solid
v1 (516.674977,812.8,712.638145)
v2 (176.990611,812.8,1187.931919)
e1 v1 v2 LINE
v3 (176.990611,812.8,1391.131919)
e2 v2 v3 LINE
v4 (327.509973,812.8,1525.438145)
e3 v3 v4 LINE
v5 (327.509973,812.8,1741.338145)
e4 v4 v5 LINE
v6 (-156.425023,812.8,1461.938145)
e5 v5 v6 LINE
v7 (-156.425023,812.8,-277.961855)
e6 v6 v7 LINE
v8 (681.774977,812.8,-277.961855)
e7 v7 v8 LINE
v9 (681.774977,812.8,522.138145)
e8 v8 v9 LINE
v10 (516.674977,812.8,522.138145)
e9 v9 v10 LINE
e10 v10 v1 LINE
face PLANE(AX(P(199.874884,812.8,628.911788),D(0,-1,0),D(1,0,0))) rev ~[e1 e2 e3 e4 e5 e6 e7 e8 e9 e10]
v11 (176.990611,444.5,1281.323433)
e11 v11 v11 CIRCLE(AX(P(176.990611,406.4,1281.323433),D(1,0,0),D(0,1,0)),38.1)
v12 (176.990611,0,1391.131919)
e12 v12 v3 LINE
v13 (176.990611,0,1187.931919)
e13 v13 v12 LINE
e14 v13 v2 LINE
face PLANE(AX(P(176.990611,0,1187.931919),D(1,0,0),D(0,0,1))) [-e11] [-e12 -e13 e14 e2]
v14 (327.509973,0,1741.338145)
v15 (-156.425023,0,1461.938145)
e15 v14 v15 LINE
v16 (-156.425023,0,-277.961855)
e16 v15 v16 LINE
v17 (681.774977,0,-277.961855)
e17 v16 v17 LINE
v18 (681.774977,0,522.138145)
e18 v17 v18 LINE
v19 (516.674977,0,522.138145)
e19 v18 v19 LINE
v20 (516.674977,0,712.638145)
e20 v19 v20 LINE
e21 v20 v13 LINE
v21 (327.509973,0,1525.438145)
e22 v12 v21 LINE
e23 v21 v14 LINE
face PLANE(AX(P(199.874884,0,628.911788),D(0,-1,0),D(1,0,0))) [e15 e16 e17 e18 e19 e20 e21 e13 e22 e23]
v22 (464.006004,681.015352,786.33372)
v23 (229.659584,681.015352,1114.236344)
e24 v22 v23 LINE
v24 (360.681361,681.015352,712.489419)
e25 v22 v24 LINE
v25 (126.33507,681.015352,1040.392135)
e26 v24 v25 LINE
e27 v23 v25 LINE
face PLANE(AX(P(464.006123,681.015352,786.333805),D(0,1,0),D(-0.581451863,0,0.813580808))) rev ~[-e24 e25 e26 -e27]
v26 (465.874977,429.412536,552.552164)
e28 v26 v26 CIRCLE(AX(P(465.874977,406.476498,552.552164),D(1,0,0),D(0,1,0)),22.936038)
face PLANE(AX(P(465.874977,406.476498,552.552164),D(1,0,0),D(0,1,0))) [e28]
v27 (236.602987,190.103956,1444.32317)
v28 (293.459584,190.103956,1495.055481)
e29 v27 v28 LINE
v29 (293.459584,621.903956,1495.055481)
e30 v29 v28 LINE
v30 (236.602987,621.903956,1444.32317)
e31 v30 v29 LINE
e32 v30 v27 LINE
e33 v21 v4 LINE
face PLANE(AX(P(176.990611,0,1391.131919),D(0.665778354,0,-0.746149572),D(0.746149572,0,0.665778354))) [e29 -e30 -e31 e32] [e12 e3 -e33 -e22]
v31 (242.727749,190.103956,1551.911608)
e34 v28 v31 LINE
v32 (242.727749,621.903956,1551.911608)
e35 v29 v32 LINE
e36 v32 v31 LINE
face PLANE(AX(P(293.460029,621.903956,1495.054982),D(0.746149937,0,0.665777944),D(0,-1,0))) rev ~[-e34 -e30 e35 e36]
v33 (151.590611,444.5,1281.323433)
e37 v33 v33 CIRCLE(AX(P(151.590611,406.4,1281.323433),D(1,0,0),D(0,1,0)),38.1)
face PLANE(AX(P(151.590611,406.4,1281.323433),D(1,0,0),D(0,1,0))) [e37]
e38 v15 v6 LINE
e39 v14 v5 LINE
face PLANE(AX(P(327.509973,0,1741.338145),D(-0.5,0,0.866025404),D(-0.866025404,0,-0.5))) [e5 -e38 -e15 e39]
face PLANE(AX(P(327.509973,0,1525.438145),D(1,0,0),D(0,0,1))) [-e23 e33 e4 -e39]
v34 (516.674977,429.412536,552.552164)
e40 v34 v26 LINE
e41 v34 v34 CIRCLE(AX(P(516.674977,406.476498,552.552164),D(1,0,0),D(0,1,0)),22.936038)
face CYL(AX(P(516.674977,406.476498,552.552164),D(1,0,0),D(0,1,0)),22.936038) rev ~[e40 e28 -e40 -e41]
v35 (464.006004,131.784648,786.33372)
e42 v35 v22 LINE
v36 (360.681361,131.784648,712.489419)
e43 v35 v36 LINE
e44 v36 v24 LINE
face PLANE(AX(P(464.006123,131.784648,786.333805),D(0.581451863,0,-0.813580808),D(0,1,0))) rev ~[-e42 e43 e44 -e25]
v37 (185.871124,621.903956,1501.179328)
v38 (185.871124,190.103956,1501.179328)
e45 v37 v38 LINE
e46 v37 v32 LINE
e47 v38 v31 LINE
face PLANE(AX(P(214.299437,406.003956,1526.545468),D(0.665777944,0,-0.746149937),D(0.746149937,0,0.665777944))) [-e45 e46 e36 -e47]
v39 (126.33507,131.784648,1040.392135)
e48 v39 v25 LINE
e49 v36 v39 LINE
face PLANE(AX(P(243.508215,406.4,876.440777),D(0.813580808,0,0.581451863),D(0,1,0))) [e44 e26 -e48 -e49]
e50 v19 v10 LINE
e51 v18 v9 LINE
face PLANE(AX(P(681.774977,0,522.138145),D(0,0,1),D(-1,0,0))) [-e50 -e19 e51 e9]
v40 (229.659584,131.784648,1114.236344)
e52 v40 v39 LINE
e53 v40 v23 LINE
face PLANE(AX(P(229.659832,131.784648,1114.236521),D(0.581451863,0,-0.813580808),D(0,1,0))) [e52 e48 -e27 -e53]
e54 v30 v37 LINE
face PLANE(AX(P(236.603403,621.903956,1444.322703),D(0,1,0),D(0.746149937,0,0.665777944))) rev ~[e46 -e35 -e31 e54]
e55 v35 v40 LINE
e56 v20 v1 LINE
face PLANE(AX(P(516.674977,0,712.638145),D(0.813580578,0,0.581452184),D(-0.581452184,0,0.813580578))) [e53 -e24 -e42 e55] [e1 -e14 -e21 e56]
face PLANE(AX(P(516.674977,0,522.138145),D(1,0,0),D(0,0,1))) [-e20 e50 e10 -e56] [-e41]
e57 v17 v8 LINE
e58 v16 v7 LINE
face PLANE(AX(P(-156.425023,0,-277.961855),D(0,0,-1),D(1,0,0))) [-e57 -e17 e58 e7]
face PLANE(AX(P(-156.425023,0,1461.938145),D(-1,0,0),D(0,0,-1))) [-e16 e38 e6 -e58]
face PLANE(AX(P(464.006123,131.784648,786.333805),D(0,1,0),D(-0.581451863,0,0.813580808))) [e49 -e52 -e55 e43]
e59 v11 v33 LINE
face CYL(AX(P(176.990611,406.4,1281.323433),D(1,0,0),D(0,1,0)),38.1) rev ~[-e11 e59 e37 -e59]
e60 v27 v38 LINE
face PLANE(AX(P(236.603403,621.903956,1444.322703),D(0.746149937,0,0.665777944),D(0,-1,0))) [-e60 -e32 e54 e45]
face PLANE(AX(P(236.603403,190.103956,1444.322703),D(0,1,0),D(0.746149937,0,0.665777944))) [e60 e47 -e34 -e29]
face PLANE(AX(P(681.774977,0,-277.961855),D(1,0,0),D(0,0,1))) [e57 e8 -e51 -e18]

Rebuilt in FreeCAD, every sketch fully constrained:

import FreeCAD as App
import Part
import Sketcher
from FreeCAD import Vector
Q = App.Units.Quantity

doc = App.newDocument("Part")
body = doc.addObject("PartDesign::Body", "Body")

# Sketch on XZ plane
sketch1 = doc.addObject("Sketcher::SketchObject", "Sketch")
body.addObject(sketch1)
sketch1.AttachmentSupport = (doc.XZ_Plane, [""])
sketch1.MapMode = "FlatFace"
sketch1.addGeometry([
    Part.LineSegment(Vector(328, 1525, 0), Vector(328, 1741, 0)),  # 0
    Part.LineSegment(Vector(328, 1741, 0), Vector(-156, 1462, 0)),  # 1
    Part.LineSegment(Vector(-156, 1462, 0), Vector(-156, -278, 0)),  # 2
    Part.LineSegment(Vector(-156, -278, 0), Vector(682, -278, 0)),  # 3
    Part.LineSegment(Vector(682, -278, 0), Vector(682, 522, 0)),  # 4
    Part.LineSegment(Vector(682, 522, 0), Vector(517, 522, 0)),  # 5
    Part.LineSegment(Vector(517, 522, 0), Vector(517, 713, 0)),  # 6
    Part.LineSegment(Vector(517, 713, 0), Vector(177, 1188, 0)),  # 7
    Part.LineSegment(Vector(177, 1188, 0), Vector(177, 1391, 0)),  # 8
    Part.LineSegment(Vector(177, 1391, 0), Vector(328, 1525, 0)),  # 9
], False)
sketch1.addConstraint([
    Sketcher.Constraint("Coincident", 0, 2, 1, 1),
    Sketcher.Constraint("Coincident", 1, 2, 2, 1),
    Sketcher.Constraint("Coincident", 2, 2, 3, 1),
    Sketcher.Constraint("Coincident", 3, 2, 4, 1),
    Sketcher.Constraint("Coincident", 4, 2, 5, 1),
    Sketcher.Constraint("Coincident", 5, 2, 6, 1),
    Sketcher.Constraint("Coincident", 6, 2, 7, 1),
    Sketcher.Constraint("Coincident", 7, 2, 8, 1),
    Sketcher.Constraint("Coincident", 8, 2, 9, 1),
    Sketcher.Constraint("Coincident", 9, 2, 0, 1),
    Sketcher.Constraint("Vertical", 0),
    Sketcher.Constraint("Vertical", 2),
    Sketcher.Constraint("Horizontal", 3),
    Sketcher.Constraint("Vertical", 4),
    Sketcher.Constraint("Horizontal", 5),
    Sketcher.Constraint("Vertical", 6),
    Sketcher.Constraint("Vertical", 8),
    Sketcher.Constraint("DistanceX", 3, 1, 3, 2, Q("33 in")),
    Sketcher.Constraint("DistanceY", 8, 1, 8, 2, Q("8 in")),
    Sketcher.Constraint("Distance", 1, Q("22 in")),
    Sketcher.Constraint("Distance", 7, Q("23 in")),
    Sketcher.Constraint("DistanceX", 5, 2, 5, 1, Q("6.5 in")),
    Sketcher.Constraint("DistanceY", 0, 1, 0, 2, Q("8.5 in")),
    Sketcher.Constraint("DistanceY", 2, 2, 2, 1, Q("68.5 in")),
    Sketcher.Constraint("DistanceY", 4, 1, 4, 2, Q("31.5 in")),
    Sketcher.Constraint("DistanceY", 6, 1, 6, 2, Q("7.5 in")),
    Sketcher.Constraint("Angle", 1, Q("-150 deg")),
    Sketcher.Constraint("DistanceX", -1, 1, 7, 2, Q("176.990611 mm")),
    Sketcher.Constraint("DistanceY", -1, 1, 7, 2, Q("1187.931919 mm")),
    Sketcher.Constraint("DistanceX", 7, 2, 0, 2, Q("150.519362 mm")),
])
pad1 = doc.addObject("PartDesign::Pad", "Pad")
body.addObject(pad1)
pad1.Profile = sketch1
pad1.Length = Q("32 in")
pad1.Reversed = True

# Sketch on an angled plane
sketch2 = doc.addObject("Sketcher::SketchObject", "Sketch001")
body.addObject(sketch2)
sketch2.Placement = App.Placement(Vector(-612.619926, 0, 686.57398), App.Rotation(Vector(0.746149937, 0, 0.665777944), Vector(0, -0.999999999, 0), Vector(0.665777944, 0, -0.746149937), "ZXY"))
sketch2.addGeometry([
    Part.LineSegment(Vector(1138, -190, 0), Vector(1138, -622, 0)),
    Part.LineSegment(Vector(1138, -622, 0), Vector(1214, -622, 0)),
    Part.LineSegment(Vector(1214, -622, 0), Vector(1214, -190, 0)),
    Part.LineSegment(Vector(1214, -190, 0), Vector(1138, -190, 0)),
], False)
sketch2.addConstraint([
    Sketcher.Constraint("Coincident", 0, 2, 1, 1),
    Sketcher.Constraint("Coincident", 1, 2, 2, 1),
    Sketcher.Constraint("Coincident", 2, 2, 3, 1),
    Sketcher.Constraint("Coincident", 3, 2, 0, 1),
    Sketcher.Constraint("Vertical", 0),
    Sketcher.Constraint("Horizontal", 1),
    Sketcher.Constraint("Vertical", 2),
    Sketcher.Constraint("Horizontal", 3),
    Sketcher.Constraint("DistanceX", 1, 1, 1, 2, Q("3 in")),
    Sketcher.Constraint("DistanceY", 0, 2, 0, 1, Q("17 in")),
    Sketcher.Constraint("DistanceX", -1, 1, 0, 2, Q("1138.14032 mm")),
    Sketcher.Constraint("DistanceY", 0, 2, -1, 1, Q("621.903955 mm")),
])
pocket1 = doc.addObject("PartDesign::Pocket", "Pocket")
body.addObject(pocket1)
pocket1.Profile = sketch2
pocket1.Length = Q("3 in")

# Sketch on an angled plane
sketch3 = doc.addObject("Sketcher::SketchObject", "Sketch002")
body.addObject(sketch3)
sketch3.Placement = App.Placement(Vector(679.11339, 0, 485.350775), App.Rotation(Vector(0, 1, 0), Vector(-0.581451863, 0, 0.813580808), Vector(0.813580808, 0, 0.581451863), "ZXY"))
sketch3.addGeometry([
    Part.LineSegment(Vector(132, 773, 0), Vector(132, 370, 0)),
    Part.LineSegment(Vector(132, 370, 0), Vector(681, 370, 0)),
    Part.LineSegment(Vector(681, 370, 0), Vector(681, 773, 0)),
    Part.LineSegment(Vector(681, 773, 0), Vector(132, 773, 0)),
], False)
sketch3.addConstraint([
    Sketcher.Constraint("Coincident", 0, 2, 1, 1),
    Sketcher.Constraint("Coincident", 1, 2, 2, 1),
    Sketcher.Constraint("Coincident", 2, 2, 3, 1),
    Sketcher.Constraint("Coincident", 3, 2, 0, 1),
    Sketcher.Constraint("Vertical", 0),
    Sketcher.Constraint("Horizontal", 1),
    Sketcher.Constraint("Vertical", 2),
    Sketcher.Constraint("Horizontal", 3),
    Sketcher.Constraint("DistanceX", 1, 1, 1, 2, Q("549.230704 mm")),
    Sketcher.Constraint("DistanceY", 0, 2, 0, 1, Q("403.036444 mm")),
    Sketcher.Constraint("DistanceX", -1, 1, 0, 2, Q("131.784648 mm")),
    Sketcher.Constraint("DistanceY", -1, 1, 0, 2, Q("369.948538 mm")),
])
pocket2 = doc.addObject("PartDesign::Pocket", "Pocket001")
body.addObject(pocket2)
pocket2.Profile = sketch3
pocket2.Length = Q("5 in")

# Sketch on YZ plane
sketch4 = doc.addObject("Sketcher::SketchObject", "Sketch003")
body.addObject(sketch4)
sketch4.AttachmentSupport = (doc.YZ_Plane, [""])
sketch4.MapMode = "FlatFace"
sketch4.AttachmentOffset = App.Placement(Vector(0, 0, 176.990611), App.Rotation())
sketch4.addGeometry(Part.Circle(Vector(406, 1281, 0), Vector(0, 0, 1), 38), False)
sketch4.addConstraint([
    Sketcher.Constraint("Diameter", 0, Q("3 in")),
    Sketcher.Constraint("DistanceX", -1, 1, 0, 3, Q("16 in")),
    Sketcher.Constraint("DistanceY", -1, 1, 0, 3, Q("1281.323433 mm")),
])
pocket3 = doc.addObject("PartDesign::Pocket", "Pocket002")
body.addObject(pocket3)
pocket3.Profile = sketch4
pocket3.Length = Q("1 in")

# Sketch on YZ plane
sketch5 = doc.addObject("Sketcher::SketchObject", "Sketch004")
body.addObject(sketch5)
sketch5.AttachmentSupport = (doc.YZ_Plane, [""])
sketch5.MapMode = "FlatFace"
sketch5.AttachmentOffset = App.Placement(Vector(0, 0, 516.674977), App.Rotation())
sketch5.addGeometry(Part.Circle(Vector(406, 553, 0), Vector(0, 0, 1), 23), False)
sketch5.addConstraint([
    Sketcher.Constraint("Diameter", 0, Q("45.872076 mm")),
    Sketcher.Constraint("DistanceX", -1, 1, 0, 3, Q("406.476498 mm")),
    Sketcher.Constraint("DistanceY", -1, 1, 0, 3, Q("552.552164 mm")),
])
pocket4 = doc.addObject("PartDesign::Pocket", "Pocket003")
body.addObject(pocket4)
pocket4.Profile = sketch5
pocket4.Length = Q("2 in")

doc.recompute()
